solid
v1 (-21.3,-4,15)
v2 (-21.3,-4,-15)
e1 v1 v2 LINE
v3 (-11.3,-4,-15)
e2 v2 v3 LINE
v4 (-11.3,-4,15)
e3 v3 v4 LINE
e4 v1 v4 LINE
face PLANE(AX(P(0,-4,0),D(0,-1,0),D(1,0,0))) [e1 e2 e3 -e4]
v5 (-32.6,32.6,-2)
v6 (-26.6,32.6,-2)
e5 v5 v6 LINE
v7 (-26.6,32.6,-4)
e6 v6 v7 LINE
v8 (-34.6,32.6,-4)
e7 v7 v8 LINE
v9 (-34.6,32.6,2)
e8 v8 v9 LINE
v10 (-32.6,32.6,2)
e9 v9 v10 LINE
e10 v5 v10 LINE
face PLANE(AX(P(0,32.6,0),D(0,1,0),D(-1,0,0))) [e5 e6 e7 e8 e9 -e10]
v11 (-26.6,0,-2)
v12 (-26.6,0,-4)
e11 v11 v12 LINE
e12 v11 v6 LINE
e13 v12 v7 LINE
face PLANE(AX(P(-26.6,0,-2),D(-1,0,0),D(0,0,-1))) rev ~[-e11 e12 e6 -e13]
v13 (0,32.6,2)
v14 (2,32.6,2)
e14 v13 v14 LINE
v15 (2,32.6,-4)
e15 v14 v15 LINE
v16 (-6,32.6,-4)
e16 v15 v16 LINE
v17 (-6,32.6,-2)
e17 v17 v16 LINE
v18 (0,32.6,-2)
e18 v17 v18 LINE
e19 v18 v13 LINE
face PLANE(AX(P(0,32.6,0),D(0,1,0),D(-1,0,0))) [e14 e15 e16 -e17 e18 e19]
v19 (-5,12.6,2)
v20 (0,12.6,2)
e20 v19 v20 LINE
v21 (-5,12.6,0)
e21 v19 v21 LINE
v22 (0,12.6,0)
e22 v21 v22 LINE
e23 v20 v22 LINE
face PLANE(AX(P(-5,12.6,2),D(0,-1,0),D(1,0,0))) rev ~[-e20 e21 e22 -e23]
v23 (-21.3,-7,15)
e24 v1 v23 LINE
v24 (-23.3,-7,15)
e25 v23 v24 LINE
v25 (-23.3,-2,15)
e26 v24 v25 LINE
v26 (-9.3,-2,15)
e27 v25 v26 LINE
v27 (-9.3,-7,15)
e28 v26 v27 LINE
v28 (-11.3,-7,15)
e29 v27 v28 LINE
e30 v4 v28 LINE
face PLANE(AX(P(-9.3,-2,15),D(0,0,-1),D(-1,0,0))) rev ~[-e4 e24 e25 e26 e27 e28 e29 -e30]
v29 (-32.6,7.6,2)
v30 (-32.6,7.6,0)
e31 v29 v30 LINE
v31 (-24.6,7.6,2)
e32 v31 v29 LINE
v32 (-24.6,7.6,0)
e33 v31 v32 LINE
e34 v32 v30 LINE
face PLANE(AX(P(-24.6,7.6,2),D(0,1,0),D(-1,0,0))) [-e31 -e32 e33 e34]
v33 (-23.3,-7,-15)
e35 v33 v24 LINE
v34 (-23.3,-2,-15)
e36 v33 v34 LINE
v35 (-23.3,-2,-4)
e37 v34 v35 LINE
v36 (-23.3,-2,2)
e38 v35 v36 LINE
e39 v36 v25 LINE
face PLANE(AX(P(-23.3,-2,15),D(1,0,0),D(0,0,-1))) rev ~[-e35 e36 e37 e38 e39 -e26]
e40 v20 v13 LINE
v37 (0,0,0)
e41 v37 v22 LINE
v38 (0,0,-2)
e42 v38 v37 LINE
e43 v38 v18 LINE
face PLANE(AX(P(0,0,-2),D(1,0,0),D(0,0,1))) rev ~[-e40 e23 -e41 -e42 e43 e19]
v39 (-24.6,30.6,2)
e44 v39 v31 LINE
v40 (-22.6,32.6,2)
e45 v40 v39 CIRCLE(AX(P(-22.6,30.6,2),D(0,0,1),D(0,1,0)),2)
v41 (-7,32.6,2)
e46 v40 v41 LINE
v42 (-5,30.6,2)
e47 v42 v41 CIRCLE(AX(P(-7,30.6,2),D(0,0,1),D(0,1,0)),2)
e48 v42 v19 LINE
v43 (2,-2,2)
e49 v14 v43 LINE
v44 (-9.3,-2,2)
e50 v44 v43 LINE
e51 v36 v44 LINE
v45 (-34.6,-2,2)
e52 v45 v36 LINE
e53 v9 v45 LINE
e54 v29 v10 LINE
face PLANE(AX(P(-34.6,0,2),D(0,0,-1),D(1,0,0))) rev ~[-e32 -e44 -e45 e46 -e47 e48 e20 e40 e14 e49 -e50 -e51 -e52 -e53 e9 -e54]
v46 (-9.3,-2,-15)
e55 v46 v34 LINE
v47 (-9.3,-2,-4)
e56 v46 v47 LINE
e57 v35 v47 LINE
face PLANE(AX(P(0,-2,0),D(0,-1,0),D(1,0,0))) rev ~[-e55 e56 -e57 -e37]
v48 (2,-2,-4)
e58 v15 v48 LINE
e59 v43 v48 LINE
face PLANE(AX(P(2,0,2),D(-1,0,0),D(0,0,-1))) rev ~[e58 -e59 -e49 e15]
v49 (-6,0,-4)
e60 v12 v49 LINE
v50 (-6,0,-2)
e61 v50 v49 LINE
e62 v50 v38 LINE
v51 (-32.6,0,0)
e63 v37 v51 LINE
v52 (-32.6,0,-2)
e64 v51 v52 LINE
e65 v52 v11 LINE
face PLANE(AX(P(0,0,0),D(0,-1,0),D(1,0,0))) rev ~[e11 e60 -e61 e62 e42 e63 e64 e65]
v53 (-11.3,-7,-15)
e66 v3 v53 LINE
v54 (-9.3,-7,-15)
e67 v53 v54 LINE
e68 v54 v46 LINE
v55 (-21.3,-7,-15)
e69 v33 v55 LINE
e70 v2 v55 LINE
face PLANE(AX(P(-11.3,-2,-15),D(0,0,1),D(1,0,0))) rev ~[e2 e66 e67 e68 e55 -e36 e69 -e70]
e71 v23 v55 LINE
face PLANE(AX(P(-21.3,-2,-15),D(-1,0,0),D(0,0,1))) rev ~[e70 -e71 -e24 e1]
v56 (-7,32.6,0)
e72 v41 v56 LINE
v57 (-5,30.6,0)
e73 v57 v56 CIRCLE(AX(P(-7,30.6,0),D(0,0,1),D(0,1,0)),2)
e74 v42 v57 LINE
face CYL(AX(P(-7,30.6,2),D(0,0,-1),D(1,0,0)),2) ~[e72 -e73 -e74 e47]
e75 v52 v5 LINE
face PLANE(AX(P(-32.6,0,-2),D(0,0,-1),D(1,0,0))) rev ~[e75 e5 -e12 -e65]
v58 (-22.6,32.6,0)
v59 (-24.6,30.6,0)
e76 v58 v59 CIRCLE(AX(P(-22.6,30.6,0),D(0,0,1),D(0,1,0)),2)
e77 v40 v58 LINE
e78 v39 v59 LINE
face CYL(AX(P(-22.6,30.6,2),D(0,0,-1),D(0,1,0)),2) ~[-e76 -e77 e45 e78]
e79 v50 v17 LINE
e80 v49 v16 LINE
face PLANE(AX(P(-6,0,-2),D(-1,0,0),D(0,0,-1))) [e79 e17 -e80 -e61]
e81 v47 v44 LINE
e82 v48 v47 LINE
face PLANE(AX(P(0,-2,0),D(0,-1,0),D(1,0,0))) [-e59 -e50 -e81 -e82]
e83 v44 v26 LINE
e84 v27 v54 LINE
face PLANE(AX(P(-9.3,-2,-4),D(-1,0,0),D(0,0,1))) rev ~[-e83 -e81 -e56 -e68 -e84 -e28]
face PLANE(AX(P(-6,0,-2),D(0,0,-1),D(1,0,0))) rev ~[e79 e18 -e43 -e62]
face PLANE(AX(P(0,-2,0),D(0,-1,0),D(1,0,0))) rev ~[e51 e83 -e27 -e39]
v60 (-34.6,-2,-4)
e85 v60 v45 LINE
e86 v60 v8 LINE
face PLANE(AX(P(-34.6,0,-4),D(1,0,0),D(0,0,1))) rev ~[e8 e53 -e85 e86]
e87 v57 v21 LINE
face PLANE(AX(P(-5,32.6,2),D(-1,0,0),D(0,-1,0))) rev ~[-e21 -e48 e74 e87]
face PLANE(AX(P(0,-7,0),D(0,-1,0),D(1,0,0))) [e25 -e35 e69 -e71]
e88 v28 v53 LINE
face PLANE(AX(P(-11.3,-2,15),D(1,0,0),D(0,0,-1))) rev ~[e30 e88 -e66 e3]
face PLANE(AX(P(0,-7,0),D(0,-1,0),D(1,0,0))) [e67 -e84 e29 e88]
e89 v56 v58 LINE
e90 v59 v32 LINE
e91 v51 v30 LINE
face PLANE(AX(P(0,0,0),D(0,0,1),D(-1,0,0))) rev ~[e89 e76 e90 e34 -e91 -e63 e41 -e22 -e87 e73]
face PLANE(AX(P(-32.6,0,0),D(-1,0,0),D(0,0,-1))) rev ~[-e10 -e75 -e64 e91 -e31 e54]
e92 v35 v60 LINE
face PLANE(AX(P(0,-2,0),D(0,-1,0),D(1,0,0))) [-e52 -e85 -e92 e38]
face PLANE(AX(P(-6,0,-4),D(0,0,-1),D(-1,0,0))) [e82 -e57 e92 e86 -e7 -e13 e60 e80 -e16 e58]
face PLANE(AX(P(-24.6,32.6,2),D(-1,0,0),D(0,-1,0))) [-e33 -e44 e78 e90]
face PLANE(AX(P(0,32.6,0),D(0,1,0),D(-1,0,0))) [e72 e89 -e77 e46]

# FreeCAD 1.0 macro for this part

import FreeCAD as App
import Part
import Sketcher


def edges_at(feature, points):
    """Names of the edges that pass closest to the given points."""
    edges = feature.Shape.Edges
    near = lambda p: min(range(len(edges)), key=lambda i: edges[i].distToShape(Part.Vertex(*p))[0])
    return sorted({f"Edge{near(p) + 1}" for p in points})

doc = App.newDocument("Part")
body = doc.addObject("PartDesign::Body", "Body")

# Sketch on XZ plane
sketch1 = body.newObject("Sketcher::SketchObject", "Sketch")
sketch1.AttachmentSupport = (doc.getObject("XZ_Plane"), [""])
sketch1.MapMode = "FlatFace"
sketch1.addGeometry([
    Part.LineSegment(App.Vector(0, -2, 0), App.Vector(0, 0, 0)),  # 0
    Part.LineSegment(App.Vector(0, 0, 0), App.Vector(-32.6, 0, 0)),  # 1
    Part.LineSegment(App.Vector(-32.6, 0, 0), App.Vector(-32.6, -2, 0)),  # 2
    Part.LineSegment(App.Vector(-32.6, -2, 0), App.Vector(-26.6, -2, 0)),  # 3
    Part.LineSegment(App.Vector(-26.6, -2, 0), App.Vector(-26.6, -4, 0)),  # 4
    Part.LineSegment(App.Vector(-26.6, -4, 0), App.Vector(-34.6, -4, 0)),  # 5
    Part.LineSegment(App.Vector(-34.6, -4, 0), App.Vector(-34.6, 2, 0)),  # 6
    Part.LineSegment(App.Vector(-34.6, 2, 0), App.Vector(2, 2, 0)),  # 7
    Part.LineSegment(App.Vector(2, 2, 0), App.Vector(2, -4, 0)),  # 8
    Part.LineSegment(App.Vector(2, -4, 0), App.Vector(-6, -4, 0)),  # 9
    Part.LineSegment(App.Vector(-6, -4, 0), App.Vector(-6, -2, 0)),  # 10
    Part.LineSegment(App.Vector(-6, -2, 0), App.Vector(0, -2, 0)),  # 11
], False)
sketch1.addConstraint([
    Sketcher.Constraint("Coincident", 0, 2, 1, 1),
    Sketcher.Constraint("Coincident", 1, 2, 2, 1),
    Sketcher.Constraint("Coincident", 2, 2, 3, 1),
    Sketcher.Constraint("Coincident", 3, 2, 4, 1),
    Sketcher.Constraint("Coincident", 4, 2, 5, 1),
    Sketcher.Constraint("Coincident", 5, 2, 6, 1),
    Sketcher.Constraint("Coincident", 6, 2, 7, 1),
    Sketcher.Constraint("Coincident", 7, 2, 8, 1),
    Sketcher.Constraint("Coincident", 8, 2, 9, 1),
    Sketcher.Constraint("Coincident", 9, 2, 10, 1),
    Sketcher.Constraint("Coincident", 10, 2, 11, 1),
    Sketcher.Constraint("Coincident", 11, 2, 0, 1),
    Sketcher.Constraint("Vertical", 0),
    Sketcher.Constraint("Horizontal", 1),
    Sketcher.Constraint("Vertical", 2),
    Sketcher.Constraint("Horizontal", 3),
    Sketcher.Constraint("Vertical", 4),
    Sketcher.Constraint("Horizontal", 5),
    Sketcher.Constraint("Vertical", 6),
    Sketcher.Constraint("Horizontal", 7),
    Sketcher.Constraint("Vertical", 8),
    Sketcher.Constraint("Horizontal", 9),
    Sketcher.Constraint("Vertical", 10),
    Sketcher.Constraint("Horizontal", 11),
    Sketcher.Constraint("Coincident", 0, 2, -1, 1),
    Sketcher.Constraint("Horizontal", 5, 2, 8, 2),
    Sketcher.Constraint("Horizontal", 3, 2, 10, 2),
    Sketcher.Constraint("Equal", 5, 9),
    Sketcher.Constraint("Equal", 3, 11),
    Sketcher.Constraint("Equal", 2, 4),
    Sketcher.Constraint("Equal", 11, 6),
    Sketcher.Constraint("DistanceX", 3, 1, 3, 2, 6.0),
    Sketcher.Constraint("DistanceY", 0, 1, 0, 2, 2.0),
    Sketcher.Constraint("DistanceX", 1, 2, 1, 1, 32.6),
    Sketcher.Constraint("DistanceX", -1, 1, 7, 2, 2.0),
])
pad1 = body.newObject("PartDesign::Pad", "Pad")
pad1.Profile = sketch1
pad1.Length = 32.6
pad1.Reversed = True

# Sketch on XZ plane
sketch2 = body.newObject("Sketcher::SketchObject", "Sketch001")
sketch2.AttachmentSupport = (doc.getObject("XZ_Plane"), [""])
sketch2.MapMode = "FlatFace"
sketch2.addGeometry([
    Part.LineSegment(App.Vector(2, -4, 0), App.Vector(2, 2, 0)),
    Part.LineSegment(App.Vector(2, 2, 0), App.Vector(-35, 2, 0)),
    Part.LineSegment(App.Vector(-35, 2, 0), App.Vector(-35, -4, 0)),
    Part.LineSegment(App.Vector(-35, -4, 0), App.Vector(2, -4, 0)),
], False)
sketch2.addConstraint([
    Sketcher.Constraint("Coincident", 0, 2, 1, 1),
    Sketcher.Constraint("Coincident", 1, 2, 2, 1),
    Sketcher.Constraint("Coincident", 2, 2, 3, 1),
    Sketcher.Constraint("Coincident", 3, 2, 0, 1),
    Sketcher.Constraint("Vertical", 0),
    Sketcher.Constraint("Horizontal", 1),
    Sketcher.Constraint("Vertical", 2),
    Sketcher.Constraint("Horizontal", 3),
    Sketcher.Constraint("DistanceY", 0, 1, 0, 2, 6.0),
    Sketcher.Constraint("DistanceX", 1, 2, 1, 1, 36.6),
    Sketcher.Constraint("DistanceX", -1, 1, 0, 2, 2.0),
    Sketcher.Constraint("DistanceY", -1, 1, 0, 2, 2.0),
])
pad2 = body.newObject("PartDesign::Pad", "Pad001")
pad2.Profile = sketch2
pad2.Length = 2

# Sketch on XY plane
sketch3 = body.newObject("Sketcher::SketchObject", "Sketch002")
sketch3.AttachmentSupport = (doc.getObject("XY_Plane"), [""])
sketch3.MapMode = "FlatFace"
sketch3.AttachmentOffset = App.Placement(App.Vector(0, 0, 2), App.Rotation())
sketch3.addGeometry([
    Part.LineSegment(App.Vector(-33, 33, 0), App.Vector(-33, 8, 0)),
    Part.LineSegment(App.Vector(-33, 8, 0), App.Vector(-25, 8, 0)),
    Part.LineSegment(App.Vector(-25, 8, 0), App.Vector(-25, 33, 0)),
    Part.LineSegment(App.Vector(-25, 33, 0), App.Vector(-33, 33, 0)),
], False)
sketch3.addConstraint([
    Sketcher.Constraint("Coincident", 0, 2, 1, 1),
    Sketcher.Constraint("Coincident", 1, 2, 2, 1),
    Sketcher.Constraint("Coincident", 2, 2, 3, 1),
    Sketcher.Constraint("Coincident", 3, 2, 0, 1),
    Sketcher.Constraint("Vertical", 0),
    Sketcher.Constraint("Horizontal", 1),
    Sketcher.Constraint("Vertical", 2),
    Sketcher.Constraint("Horizontal", 3),
    Sketcher.Constraint("DistanceX", 1, 1, 1, 2, 8.0),
    Sketcher.Constraint("DistanceY", 0, 2, 0, 1, 25.0),
    Sketcher.Constraint("DistanceX", 0, 2, -1, 1, 32.6),
    Sketcher.Constraint("DistanceY", -1, 1, 0, 2, 7.6),
])
pocket1 = body.newObject("PartDesign::Pocket", "Pocket")
pocket1.Profile = sketch3
pocket1.Length = 2

# Sketch on XZ plane
sketch4 = body.newObject("Sketcher::SketchObject", "Sketch003")
sketch4.AttachmentSupport = (doc.getObject("XZ_Plane"), [""])
sketch4.MapMode = "FlatFace"
sketch4.AttachmentOffset = App.Placement(App.Vector(0, 0, 2), App.Rotation())
sketch4.addGeometry([
    Part.LineSegment(App.Vector(-9, 15, 0), App.Vector(-23, 15, 0)),
    Part.LineSegment(App.Vector(-23, 15, 0), App.Vector(-23, -15, 0)),
    Part.LineSegment(App.Vector(-23, -15, 0), App.Vector(-9, -15, 0)),
    Part.LineSegment(App.Vector(-9, -15, 0), App.Vector(-9, 15, 0)),
], False)
sketch4.addConstraint([
    Sketcher.Constraint("Coincident", 0, 2, 1, 1),
    Sketcher.Constraint("Coincident", 1, 2, 2, 1),
    Sketcher.Constraint("Coincident", 2, 2, 3, 1),
    Sketcher.Constraint("Coincident", 3, 2, 0, 1),
    Sketcher.Constraint("Horizontal", 0),
    Sketcher.Constraint("Vertical", 1),
    Sketcher.Constraint("Horizontal", 2),
    Sketcher.Constraint("Vertical", 3),
    Sketcher.Constraint("DistanceX", 0, 2, 0, 1, 14.0),
    Sketcher.Constraint("DistanceY", 1, 2, 1, 1, 30.0),
    Sketcher.Constraint("DistanceY", -1, 1, 0, 2, 15.0),
    Sketcher.Constraint("DistanceX", 0, 2, -1, 1, 23.3),
])
pad3 = body.newObject("PartDesign::Pad", "Pad002")
pad3.Profile = sketch4
pad3.Length = 2

# Sketch on XZ plane
sketch5 = body.newObject("Sketcher::SketchObject", "Sketch004")
sketch5.AttachmentSupport = (doc.getObject("XZ_Plane"), [""])
sketch5.MapMode = "FlatFace"
sketch5.AttachmentOffset = App.Placement(App.Vector(0, 0, 2), App.Rotation())
sketch5.addGeometry([
    Part.LineSegment(App.Vector(-9.3, 15, 0), App.Vector(-11.3, 15, 0)),  # 0
    Part.LineSegment(App.Vector(-11.3, 15, 0), App.Vector(-11.3, -15, 0)),  # 1
    Part.LineSegment(App.Vector(-11.3, -15, 0), App.Vector(-9.3, -15, 0)),  # 2
    Part.LineSegment(App.Vector(-9.3, -15, 0), App.Vector(-9.3, 15, 0)),  # 3
    Part.LineSegment(App.Vector(-21.3, -4, 0), App.Vector(-21.3, 15, 0)),  # 4
    Part.LineSegment(App.Vector(-21.3, 15, 0), App.Vector(-23.3, 15, 0)),  # 5
    Part.LineSegment(App.Vector(-23.3, 15, 0), App.Vector(-23.3, -4, 0)),  # 6
    Part.LineSegment(App.Vector(-23.3, -4, 0), App.Vector(-21.3, -4, 0)),  # 7
], False)
sketch5.addConstraint([
    Sketcher.Constraint("Coincident", 0, 2, 1, 1),
    Sketcher.Constraint("Coincident", 1, 2, 2, 1),
    Sketcher.Constraint("Coincident", 2, 2, 3, 1),
    Sketcher.Constraint("Coincident", 3, 2, 0, 1),
    Sketcher.Constraint("Coincident", 4, 2, 5, 1),
    Sketcher.Constraint("Coincident", 5, 2, 6, 1),
    Sketcher.Constraint("Coincident", 6, 2, 7, 1),
    Sketcher.Constraint("Coincident", 7, 2, 4, 1),
    Sketcher.Constraint("Horizontal", 0),
    Sketcher.Constraint("Vertical", 1),
    Sketcher.Constraint("Horizontal", 2),
    Sketcher.Constraint("Vertical", 3),
    Sketcher.Constraint("Vertical", 4),
    Sketcher.Constraint("Horizontal", 5),
    Sketcher.Constraint("Vertical", 6),
    Sketcher.Constraint("Horizontal", 7),
    Sketcher.Constraint("Horizontal", 3, 2, 4, 2),
    Sketcher.Constraint("Equal", 2, 5),
    Sketcher.Constraint("DistanceX", 0, 2, 0, 1, 2.0),
    Sketcher.Constraint("DistanceY", 1, 2, 1, 1, 30.0),
    Sketcher.Constraint("DistanceX", 5, 2, 3, 2, 14.0),
    Sketcher.Constraint("DistanceY", 4, 1, 4, 2, 19.0),
    Sketcher.Constraint("DistanceY", -1, 1, 0, 2, 15.0),
    Sketcher.Constraint("DistanceX", 0, 2, -1, 1, 11.3),
])
pad4 = body.newObject("PartDesign::Pad", "Pad003")
pad4.Profile = sketch5
pad4.Length = 5

# Sketch on XZ plane
sketch6 = body.newObject("Sketcher::SketchObject", "Sketch005")
sketch6.AttachmentSupport = (doc.getObject("XZ_Plane"), [""])
sketch6.MapMode = "FlatFace"
sketch6.AttachmentOffset = App.Placement(App.Vector(0, 0, 2), App.Rotation())
sketch6.addGeometry([
    Part.LineSegment(App.Vector(-21.3, -15, 0), App.Vector(-21.3, -4, 0)),
    Part.LineSegment(App.Vector(-21.3, -4, 0), App.Vector(-23.3, -4, 0)),
    Part.LineSegment(App.Vector(-23.3, -4, 0), App.Vector(-23.3, -15, 0)),
    Part.LineSegment(App.Vector(-23.3, -15, 0), App.Vector(-21.3, -15, 0)),
], False)
sketch6.addConstraint([
    Sketcher.Constraint("Coincident", 0, 2, 1, 1),
    Sketcher.Constraint("Coincident", 1, 2, 2, 1),
    Sketcher.Constraint("Coincident", 2, 2, 3, 1),
    Sketcher.Constraint("Coincident", 3, 2, 0, 1),
    Sketcher.Constraint("Vertical", 0),
    Sketcher.Constraint("Horizontal", 1),
    Sketcher.Constraint("Vertical", 2),
    Sketcher.Constraint("Horizontal", 3),
    Sketcher.Constraint("DistanceX", 1, 2, 1, 1, 2.0),
    Sketcher.Constraint("DistanceY", 0, 1, 0, 2, 11.0),
    Sketcher.Constraint("DistanceY", 0, 2, -1, 1, 4.0),
    Sketcher.Constraint("DistanceX", 0, 2, -1, 1, 21.3),
])
pad5 = body.newObject("PartDesign::Pad", "Pad004")
pad5.Profile = sketch6
pad5.Length = 5

# Sketch on XY plane
sketch7 = body.newObject("Sketcher::SketchObject", "Sketch006")
sketch7.AttachmentSupport = (doc.getObject("XY_Plane"), [""])
sketch7.MapMode = "FlatFace"
sketch7.AttachmentOffset = App.Placement(App.Vector(0, 0, 2), App.Rotation())
sketch7.addGeometry([
    Part.LineSegment(App.Vector(0, 33, 0), App.Vector(-5, 33, 0)),
    Part.LineSegment(App.Vector(-5, 33, 0), App.Vector(-5, 13, 0)),
    Part.LineSegment(App.Vector(-5, 13, 0), App.Vector(0, 13, 0)),
    Part.LineSegment(App.Vector(0, 13, 0), App.Vector(0, 33, 0)),
], False)
sketch7.addConstraint([
    Sketcher.Constraint("Coincident", 0, 2, 1, 1),
    Sketcher.Constraint("Coincident", 1, 2, 2, 1),
    Sketcher.Constraint("Coincident", 2, 2, 3, 1),
    Sketcher.Constraint("Coincident", 3, 2, 0, 1),
    Sketcher.Constraint("Horizontal", 0),
    Sketcher.Constraint("Vertical", 1),
    Sketcher.Constraint("Horizontal", 2),
    Sketcher.Constraint("Vertical", 3),
    Sketcher.Constraint("PointOnObject", 2, 2, -2),
    Sketcher.Constraint("DistanceX", 0, 2, 0, 1, 5.0),
    Sketcher.Constraint("DistanceY", 1, 2, 1, 1, 20.0),
    Sketcher.Constraint("DistanceY", -1, 1, 0, 2, 32.6),
])
pocket2 = body.newObject("PartDesign::Pocket", "Pocket001")
pocket2.Profile = sketch7
pocket2.Length = 2
doc.recompute()

fillet = body.newObject("PartDesign::Fillet", "Fillet")
fillet.Base = (pocket2, edges_at(pocket2, [(-5, 32.6, 1), (-24.6, 32.6, 1)]))
fillet.Radius = 2

doc.recompute()
